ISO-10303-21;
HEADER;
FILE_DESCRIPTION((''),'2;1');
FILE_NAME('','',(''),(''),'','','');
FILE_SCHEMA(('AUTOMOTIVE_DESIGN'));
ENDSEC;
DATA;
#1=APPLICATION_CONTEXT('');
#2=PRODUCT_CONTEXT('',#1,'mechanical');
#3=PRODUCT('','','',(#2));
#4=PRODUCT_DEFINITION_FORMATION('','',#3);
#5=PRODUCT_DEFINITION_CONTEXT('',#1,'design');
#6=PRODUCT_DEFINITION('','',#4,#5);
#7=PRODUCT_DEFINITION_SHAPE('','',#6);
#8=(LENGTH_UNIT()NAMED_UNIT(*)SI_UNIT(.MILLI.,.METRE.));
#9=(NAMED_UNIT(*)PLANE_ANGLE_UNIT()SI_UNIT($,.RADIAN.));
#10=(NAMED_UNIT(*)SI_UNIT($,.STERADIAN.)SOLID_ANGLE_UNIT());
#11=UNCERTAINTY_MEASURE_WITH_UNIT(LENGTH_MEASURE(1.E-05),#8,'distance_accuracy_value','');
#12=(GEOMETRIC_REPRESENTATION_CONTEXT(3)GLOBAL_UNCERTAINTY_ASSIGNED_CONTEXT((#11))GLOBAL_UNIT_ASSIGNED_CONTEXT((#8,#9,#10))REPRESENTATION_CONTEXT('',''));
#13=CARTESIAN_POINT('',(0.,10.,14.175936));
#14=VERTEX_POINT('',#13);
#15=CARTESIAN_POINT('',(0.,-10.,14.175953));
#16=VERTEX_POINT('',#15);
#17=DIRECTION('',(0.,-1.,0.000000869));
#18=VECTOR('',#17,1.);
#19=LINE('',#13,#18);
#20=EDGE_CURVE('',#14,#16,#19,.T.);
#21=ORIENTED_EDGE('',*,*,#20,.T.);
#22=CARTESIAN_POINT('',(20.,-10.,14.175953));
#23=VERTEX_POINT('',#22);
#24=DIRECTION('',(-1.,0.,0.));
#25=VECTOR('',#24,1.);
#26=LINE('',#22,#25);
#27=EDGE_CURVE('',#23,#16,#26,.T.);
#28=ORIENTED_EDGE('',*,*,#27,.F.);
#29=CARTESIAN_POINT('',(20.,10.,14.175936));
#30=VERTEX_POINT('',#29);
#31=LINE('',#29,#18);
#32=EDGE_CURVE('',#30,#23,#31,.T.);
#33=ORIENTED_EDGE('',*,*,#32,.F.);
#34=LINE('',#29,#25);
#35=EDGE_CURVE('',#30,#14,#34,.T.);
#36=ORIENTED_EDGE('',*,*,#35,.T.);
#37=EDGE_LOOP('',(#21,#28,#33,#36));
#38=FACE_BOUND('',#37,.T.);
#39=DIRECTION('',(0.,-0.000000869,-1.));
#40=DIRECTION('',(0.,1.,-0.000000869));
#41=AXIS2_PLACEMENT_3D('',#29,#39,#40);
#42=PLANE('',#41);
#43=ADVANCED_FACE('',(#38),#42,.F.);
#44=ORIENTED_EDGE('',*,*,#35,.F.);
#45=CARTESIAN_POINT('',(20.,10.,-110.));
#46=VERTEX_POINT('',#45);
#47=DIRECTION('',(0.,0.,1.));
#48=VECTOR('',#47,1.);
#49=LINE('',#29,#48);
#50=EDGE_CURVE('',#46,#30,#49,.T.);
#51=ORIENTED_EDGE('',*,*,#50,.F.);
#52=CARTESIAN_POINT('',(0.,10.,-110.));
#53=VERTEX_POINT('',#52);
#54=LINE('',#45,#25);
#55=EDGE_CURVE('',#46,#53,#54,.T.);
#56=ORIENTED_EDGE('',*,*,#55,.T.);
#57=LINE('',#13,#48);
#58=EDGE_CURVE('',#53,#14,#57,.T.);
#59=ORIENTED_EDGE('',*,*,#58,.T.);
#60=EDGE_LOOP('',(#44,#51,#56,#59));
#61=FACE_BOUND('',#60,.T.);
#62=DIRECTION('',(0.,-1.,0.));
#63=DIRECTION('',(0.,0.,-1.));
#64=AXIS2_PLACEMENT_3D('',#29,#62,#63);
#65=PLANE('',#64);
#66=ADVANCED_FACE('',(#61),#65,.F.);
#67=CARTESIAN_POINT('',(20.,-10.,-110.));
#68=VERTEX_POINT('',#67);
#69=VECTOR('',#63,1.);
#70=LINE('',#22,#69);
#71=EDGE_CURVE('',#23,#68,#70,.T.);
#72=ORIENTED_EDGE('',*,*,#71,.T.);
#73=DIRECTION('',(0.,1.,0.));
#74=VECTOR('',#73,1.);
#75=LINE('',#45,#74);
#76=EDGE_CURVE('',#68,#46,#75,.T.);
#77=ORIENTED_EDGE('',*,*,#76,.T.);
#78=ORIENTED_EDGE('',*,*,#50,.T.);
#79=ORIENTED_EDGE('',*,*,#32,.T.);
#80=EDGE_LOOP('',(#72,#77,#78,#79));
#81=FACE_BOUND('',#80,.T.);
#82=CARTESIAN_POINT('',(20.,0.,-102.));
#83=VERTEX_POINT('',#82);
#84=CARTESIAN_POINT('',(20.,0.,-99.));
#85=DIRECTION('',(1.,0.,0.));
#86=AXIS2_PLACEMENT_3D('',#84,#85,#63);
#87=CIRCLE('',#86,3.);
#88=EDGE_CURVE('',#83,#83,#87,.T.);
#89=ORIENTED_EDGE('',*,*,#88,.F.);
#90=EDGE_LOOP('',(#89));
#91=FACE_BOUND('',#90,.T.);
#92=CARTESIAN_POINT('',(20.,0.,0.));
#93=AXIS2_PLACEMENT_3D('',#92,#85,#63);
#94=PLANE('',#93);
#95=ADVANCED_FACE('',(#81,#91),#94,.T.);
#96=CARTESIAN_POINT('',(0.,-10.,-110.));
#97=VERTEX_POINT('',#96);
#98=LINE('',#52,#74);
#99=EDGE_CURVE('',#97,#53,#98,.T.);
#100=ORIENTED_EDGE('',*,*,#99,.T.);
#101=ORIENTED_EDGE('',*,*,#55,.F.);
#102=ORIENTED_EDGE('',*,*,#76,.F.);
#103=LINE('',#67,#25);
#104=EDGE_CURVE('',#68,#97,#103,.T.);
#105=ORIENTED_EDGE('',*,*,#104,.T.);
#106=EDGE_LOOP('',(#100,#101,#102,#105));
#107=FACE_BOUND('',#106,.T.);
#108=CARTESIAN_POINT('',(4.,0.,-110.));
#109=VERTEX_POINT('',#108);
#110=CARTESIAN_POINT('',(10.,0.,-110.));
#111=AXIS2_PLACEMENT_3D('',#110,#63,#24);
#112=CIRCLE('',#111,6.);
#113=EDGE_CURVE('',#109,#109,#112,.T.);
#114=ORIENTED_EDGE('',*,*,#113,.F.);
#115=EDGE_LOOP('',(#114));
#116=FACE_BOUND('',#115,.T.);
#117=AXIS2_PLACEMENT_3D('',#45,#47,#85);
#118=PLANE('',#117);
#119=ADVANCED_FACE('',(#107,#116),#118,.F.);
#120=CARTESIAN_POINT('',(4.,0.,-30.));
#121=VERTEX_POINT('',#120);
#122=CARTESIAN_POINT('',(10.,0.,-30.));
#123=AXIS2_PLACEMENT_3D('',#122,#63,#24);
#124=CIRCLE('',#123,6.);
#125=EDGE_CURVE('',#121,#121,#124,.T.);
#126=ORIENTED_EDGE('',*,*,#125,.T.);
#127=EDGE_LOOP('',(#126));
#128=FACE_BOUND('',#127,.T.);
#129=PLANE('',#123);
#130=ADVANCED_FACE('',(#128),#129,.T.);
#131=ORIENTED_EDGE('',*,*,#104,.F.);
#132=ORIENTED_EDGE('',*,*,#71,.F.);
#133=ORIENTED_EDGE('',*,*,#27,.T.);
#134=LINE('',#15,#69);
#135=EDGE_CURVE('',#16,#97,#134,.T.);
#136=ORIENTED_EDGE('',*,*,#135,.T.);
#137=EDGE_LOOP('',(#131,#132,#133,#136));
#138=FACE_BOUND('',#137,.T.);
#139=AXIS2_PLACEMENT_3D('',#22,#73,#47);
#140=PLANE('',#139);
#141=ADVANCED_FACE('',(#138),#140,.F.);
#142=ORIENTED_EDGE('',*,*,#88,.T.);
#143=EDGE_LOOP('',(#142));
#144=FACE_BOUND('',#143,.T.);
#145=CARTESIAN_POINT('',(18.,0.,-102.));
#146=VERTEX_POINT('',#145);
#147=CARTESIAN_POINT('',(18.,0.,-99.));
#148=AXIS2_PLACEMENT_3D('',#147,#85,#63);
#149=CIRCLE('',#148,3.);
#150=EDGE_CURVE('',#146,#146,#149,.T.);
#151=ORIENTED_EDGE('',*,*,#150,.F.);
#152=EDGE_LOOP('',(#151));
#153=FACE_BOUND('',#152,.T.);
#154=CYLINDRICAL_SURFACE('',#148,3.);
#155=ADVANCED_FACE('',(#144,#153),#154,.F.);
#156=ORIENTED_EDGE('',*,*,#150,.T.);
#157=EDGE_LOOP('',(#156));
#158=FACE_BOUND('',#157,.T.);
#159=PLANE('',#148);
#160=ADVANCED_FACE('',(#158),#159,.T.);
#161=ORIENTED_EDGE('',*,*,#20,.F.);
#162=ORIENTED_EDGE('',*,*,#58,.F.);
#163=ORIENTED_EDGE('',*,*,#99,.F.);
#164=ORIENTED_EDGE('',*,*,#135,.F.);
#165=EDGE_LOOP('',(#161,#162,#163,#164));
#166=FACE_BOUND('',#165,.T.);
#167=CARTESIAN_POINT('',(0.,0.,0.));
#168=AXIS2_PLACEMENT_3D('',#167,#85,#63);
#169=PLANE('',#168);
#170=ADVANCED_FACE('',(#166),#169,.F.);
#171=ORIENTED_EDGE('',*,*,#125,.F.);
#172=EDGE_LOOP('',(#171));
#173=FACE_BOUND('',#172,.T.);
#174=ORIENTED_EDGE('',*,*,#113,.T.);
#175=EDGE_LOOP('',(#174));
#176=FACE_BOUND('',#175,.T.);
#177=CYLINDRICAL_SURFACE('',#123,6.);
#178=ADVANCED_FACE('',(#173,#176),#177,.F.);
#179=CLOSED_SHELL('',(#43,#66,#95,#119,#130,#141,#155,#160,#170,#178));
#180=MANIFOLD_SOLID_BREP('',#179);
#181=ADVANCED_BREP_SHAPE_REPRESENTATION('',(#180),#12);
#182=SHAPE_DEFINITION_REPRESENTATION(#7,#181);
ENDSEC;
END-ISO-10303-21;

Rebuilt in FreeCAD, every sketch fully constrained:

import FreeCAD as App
import Part
import Sketcher
from FreeCAD import Vector

doc = App.newDocument("Part")
body = doc.addObject("PartDesign::Body", "Body")

sketch1 = body.newObject("Sketcher::SketchObject", "Sketch")
sketch1.AttachmentSupport = (doc.getObject("YZ_Plane"), [""])
sketch1.MapMode = "FlatFace"
sketch1.addGeometry([
    Part.LineSegment(Vector(10, 14, 0), Vector(-10, 14, 0)),
    Part.LineSegment(Vector(-10, 14, 0), Vector(-10, -110, 0)),
    Part.LineSegment(Vector(-10, -110, 0), Vector(10, -110, 0)),
    Part.LineSegment(Vector(10, -110, 0), Vector(10, 14, 0)),
], False)
sketch1.addConstraint([
    Sketcher.Constraint("Coincident", 0, 2, 1, 1),
    Sketcher.Constraint("Coincident", 1, 2, 2, 1),
    Sketcher.Constraint("Coincident", 2, 2, 3, 1),
    Sketcher.Constraint("Coincident", 3, 2, 0, 1),
    Sketcher.Constraint("Vertical", 1),
    Sketcher.Constraint("Horizontal", 2),
    Sketcher.Constraint("Vertical", 3),
    Sketcher.Constraint("DistanceX", 2, 1, 2, 2, 20.0),
    Sketcher.Constraint("DistanceX", 0, 2, -1, 1, 10.0),
    Sketcher.Constraint("DistanceY", 1, 2, -1, 1, 110.0),
    Sketcher.Constraint("DistanceY", 1, 2, 1, 1, 124.175953),
    Sketcher.Constraint("DistanceY", 3, 1, 3, 2, 124.175936),
])
pad1 = body.newObject("PartDesign::Pad", "Pad")
pad1.Profile = sketch1
pad1.Length = 20

sketch2 = body.newObject("Sketcher::SketchObject", "Sketch001")
sketch2.AttachmentSupport = (doc.getObject("XY_Plane"), [""])
sketch2.MapMode = "FlatFace"
sketch2.AttachmentOffset = App.Placement(Vector(0, 0, -110), App.Rotation())
sketch2.addGeometry(Part.Circle(Vector(10, 0, 0), Vector(0, 0, 1), 6), False)
sketch2.addConstraint([
    Sketcher.Constraint("PointOnObject", 0, 3, -1),
    Sketcher.Constraint("Diameter", 0, 12.0),
    Sketcher.Constraint("DistanceX", -1, 1, 0, 3, 10.0),
])
pocket1 = body.newObject("PartDesign::Pocket", "Pocket")
pocket1.Profile = sketch2
pocket1.Length = 80
pocket1.Reversed = True

sketch3 = body.newObject("Sketcher::SketchObject", "Sketch002")
sketch3.AttachmentSupport = (doc.getObject("YZ_Plane"), [""])
sketch3.MapMode = "FlatFace"
sketch3.AttachmentOffset = App.Placement(Vector(0, 0, 20), App.Rotation())
sketch3.addGeometry(Part.Circle(Vector(0, -99, 0), Vector(0, 0, 1), 3), False)
sketch3.addConstraint([
    Sketcher.Constraint("PointOnObject", 0, 3, -2),
    Sketcher.Constraint("Diameter", 0, 6.0),
    Sketcher.Constraint("DistanceY", 0, 3, -1, 1, 99.0),
])
pocket2 = body.newObject("PartDesign::Pocket", "Pocket001")
pocket2.Profile = sketch3
pocket2.Length = 2

doc.recompute()
